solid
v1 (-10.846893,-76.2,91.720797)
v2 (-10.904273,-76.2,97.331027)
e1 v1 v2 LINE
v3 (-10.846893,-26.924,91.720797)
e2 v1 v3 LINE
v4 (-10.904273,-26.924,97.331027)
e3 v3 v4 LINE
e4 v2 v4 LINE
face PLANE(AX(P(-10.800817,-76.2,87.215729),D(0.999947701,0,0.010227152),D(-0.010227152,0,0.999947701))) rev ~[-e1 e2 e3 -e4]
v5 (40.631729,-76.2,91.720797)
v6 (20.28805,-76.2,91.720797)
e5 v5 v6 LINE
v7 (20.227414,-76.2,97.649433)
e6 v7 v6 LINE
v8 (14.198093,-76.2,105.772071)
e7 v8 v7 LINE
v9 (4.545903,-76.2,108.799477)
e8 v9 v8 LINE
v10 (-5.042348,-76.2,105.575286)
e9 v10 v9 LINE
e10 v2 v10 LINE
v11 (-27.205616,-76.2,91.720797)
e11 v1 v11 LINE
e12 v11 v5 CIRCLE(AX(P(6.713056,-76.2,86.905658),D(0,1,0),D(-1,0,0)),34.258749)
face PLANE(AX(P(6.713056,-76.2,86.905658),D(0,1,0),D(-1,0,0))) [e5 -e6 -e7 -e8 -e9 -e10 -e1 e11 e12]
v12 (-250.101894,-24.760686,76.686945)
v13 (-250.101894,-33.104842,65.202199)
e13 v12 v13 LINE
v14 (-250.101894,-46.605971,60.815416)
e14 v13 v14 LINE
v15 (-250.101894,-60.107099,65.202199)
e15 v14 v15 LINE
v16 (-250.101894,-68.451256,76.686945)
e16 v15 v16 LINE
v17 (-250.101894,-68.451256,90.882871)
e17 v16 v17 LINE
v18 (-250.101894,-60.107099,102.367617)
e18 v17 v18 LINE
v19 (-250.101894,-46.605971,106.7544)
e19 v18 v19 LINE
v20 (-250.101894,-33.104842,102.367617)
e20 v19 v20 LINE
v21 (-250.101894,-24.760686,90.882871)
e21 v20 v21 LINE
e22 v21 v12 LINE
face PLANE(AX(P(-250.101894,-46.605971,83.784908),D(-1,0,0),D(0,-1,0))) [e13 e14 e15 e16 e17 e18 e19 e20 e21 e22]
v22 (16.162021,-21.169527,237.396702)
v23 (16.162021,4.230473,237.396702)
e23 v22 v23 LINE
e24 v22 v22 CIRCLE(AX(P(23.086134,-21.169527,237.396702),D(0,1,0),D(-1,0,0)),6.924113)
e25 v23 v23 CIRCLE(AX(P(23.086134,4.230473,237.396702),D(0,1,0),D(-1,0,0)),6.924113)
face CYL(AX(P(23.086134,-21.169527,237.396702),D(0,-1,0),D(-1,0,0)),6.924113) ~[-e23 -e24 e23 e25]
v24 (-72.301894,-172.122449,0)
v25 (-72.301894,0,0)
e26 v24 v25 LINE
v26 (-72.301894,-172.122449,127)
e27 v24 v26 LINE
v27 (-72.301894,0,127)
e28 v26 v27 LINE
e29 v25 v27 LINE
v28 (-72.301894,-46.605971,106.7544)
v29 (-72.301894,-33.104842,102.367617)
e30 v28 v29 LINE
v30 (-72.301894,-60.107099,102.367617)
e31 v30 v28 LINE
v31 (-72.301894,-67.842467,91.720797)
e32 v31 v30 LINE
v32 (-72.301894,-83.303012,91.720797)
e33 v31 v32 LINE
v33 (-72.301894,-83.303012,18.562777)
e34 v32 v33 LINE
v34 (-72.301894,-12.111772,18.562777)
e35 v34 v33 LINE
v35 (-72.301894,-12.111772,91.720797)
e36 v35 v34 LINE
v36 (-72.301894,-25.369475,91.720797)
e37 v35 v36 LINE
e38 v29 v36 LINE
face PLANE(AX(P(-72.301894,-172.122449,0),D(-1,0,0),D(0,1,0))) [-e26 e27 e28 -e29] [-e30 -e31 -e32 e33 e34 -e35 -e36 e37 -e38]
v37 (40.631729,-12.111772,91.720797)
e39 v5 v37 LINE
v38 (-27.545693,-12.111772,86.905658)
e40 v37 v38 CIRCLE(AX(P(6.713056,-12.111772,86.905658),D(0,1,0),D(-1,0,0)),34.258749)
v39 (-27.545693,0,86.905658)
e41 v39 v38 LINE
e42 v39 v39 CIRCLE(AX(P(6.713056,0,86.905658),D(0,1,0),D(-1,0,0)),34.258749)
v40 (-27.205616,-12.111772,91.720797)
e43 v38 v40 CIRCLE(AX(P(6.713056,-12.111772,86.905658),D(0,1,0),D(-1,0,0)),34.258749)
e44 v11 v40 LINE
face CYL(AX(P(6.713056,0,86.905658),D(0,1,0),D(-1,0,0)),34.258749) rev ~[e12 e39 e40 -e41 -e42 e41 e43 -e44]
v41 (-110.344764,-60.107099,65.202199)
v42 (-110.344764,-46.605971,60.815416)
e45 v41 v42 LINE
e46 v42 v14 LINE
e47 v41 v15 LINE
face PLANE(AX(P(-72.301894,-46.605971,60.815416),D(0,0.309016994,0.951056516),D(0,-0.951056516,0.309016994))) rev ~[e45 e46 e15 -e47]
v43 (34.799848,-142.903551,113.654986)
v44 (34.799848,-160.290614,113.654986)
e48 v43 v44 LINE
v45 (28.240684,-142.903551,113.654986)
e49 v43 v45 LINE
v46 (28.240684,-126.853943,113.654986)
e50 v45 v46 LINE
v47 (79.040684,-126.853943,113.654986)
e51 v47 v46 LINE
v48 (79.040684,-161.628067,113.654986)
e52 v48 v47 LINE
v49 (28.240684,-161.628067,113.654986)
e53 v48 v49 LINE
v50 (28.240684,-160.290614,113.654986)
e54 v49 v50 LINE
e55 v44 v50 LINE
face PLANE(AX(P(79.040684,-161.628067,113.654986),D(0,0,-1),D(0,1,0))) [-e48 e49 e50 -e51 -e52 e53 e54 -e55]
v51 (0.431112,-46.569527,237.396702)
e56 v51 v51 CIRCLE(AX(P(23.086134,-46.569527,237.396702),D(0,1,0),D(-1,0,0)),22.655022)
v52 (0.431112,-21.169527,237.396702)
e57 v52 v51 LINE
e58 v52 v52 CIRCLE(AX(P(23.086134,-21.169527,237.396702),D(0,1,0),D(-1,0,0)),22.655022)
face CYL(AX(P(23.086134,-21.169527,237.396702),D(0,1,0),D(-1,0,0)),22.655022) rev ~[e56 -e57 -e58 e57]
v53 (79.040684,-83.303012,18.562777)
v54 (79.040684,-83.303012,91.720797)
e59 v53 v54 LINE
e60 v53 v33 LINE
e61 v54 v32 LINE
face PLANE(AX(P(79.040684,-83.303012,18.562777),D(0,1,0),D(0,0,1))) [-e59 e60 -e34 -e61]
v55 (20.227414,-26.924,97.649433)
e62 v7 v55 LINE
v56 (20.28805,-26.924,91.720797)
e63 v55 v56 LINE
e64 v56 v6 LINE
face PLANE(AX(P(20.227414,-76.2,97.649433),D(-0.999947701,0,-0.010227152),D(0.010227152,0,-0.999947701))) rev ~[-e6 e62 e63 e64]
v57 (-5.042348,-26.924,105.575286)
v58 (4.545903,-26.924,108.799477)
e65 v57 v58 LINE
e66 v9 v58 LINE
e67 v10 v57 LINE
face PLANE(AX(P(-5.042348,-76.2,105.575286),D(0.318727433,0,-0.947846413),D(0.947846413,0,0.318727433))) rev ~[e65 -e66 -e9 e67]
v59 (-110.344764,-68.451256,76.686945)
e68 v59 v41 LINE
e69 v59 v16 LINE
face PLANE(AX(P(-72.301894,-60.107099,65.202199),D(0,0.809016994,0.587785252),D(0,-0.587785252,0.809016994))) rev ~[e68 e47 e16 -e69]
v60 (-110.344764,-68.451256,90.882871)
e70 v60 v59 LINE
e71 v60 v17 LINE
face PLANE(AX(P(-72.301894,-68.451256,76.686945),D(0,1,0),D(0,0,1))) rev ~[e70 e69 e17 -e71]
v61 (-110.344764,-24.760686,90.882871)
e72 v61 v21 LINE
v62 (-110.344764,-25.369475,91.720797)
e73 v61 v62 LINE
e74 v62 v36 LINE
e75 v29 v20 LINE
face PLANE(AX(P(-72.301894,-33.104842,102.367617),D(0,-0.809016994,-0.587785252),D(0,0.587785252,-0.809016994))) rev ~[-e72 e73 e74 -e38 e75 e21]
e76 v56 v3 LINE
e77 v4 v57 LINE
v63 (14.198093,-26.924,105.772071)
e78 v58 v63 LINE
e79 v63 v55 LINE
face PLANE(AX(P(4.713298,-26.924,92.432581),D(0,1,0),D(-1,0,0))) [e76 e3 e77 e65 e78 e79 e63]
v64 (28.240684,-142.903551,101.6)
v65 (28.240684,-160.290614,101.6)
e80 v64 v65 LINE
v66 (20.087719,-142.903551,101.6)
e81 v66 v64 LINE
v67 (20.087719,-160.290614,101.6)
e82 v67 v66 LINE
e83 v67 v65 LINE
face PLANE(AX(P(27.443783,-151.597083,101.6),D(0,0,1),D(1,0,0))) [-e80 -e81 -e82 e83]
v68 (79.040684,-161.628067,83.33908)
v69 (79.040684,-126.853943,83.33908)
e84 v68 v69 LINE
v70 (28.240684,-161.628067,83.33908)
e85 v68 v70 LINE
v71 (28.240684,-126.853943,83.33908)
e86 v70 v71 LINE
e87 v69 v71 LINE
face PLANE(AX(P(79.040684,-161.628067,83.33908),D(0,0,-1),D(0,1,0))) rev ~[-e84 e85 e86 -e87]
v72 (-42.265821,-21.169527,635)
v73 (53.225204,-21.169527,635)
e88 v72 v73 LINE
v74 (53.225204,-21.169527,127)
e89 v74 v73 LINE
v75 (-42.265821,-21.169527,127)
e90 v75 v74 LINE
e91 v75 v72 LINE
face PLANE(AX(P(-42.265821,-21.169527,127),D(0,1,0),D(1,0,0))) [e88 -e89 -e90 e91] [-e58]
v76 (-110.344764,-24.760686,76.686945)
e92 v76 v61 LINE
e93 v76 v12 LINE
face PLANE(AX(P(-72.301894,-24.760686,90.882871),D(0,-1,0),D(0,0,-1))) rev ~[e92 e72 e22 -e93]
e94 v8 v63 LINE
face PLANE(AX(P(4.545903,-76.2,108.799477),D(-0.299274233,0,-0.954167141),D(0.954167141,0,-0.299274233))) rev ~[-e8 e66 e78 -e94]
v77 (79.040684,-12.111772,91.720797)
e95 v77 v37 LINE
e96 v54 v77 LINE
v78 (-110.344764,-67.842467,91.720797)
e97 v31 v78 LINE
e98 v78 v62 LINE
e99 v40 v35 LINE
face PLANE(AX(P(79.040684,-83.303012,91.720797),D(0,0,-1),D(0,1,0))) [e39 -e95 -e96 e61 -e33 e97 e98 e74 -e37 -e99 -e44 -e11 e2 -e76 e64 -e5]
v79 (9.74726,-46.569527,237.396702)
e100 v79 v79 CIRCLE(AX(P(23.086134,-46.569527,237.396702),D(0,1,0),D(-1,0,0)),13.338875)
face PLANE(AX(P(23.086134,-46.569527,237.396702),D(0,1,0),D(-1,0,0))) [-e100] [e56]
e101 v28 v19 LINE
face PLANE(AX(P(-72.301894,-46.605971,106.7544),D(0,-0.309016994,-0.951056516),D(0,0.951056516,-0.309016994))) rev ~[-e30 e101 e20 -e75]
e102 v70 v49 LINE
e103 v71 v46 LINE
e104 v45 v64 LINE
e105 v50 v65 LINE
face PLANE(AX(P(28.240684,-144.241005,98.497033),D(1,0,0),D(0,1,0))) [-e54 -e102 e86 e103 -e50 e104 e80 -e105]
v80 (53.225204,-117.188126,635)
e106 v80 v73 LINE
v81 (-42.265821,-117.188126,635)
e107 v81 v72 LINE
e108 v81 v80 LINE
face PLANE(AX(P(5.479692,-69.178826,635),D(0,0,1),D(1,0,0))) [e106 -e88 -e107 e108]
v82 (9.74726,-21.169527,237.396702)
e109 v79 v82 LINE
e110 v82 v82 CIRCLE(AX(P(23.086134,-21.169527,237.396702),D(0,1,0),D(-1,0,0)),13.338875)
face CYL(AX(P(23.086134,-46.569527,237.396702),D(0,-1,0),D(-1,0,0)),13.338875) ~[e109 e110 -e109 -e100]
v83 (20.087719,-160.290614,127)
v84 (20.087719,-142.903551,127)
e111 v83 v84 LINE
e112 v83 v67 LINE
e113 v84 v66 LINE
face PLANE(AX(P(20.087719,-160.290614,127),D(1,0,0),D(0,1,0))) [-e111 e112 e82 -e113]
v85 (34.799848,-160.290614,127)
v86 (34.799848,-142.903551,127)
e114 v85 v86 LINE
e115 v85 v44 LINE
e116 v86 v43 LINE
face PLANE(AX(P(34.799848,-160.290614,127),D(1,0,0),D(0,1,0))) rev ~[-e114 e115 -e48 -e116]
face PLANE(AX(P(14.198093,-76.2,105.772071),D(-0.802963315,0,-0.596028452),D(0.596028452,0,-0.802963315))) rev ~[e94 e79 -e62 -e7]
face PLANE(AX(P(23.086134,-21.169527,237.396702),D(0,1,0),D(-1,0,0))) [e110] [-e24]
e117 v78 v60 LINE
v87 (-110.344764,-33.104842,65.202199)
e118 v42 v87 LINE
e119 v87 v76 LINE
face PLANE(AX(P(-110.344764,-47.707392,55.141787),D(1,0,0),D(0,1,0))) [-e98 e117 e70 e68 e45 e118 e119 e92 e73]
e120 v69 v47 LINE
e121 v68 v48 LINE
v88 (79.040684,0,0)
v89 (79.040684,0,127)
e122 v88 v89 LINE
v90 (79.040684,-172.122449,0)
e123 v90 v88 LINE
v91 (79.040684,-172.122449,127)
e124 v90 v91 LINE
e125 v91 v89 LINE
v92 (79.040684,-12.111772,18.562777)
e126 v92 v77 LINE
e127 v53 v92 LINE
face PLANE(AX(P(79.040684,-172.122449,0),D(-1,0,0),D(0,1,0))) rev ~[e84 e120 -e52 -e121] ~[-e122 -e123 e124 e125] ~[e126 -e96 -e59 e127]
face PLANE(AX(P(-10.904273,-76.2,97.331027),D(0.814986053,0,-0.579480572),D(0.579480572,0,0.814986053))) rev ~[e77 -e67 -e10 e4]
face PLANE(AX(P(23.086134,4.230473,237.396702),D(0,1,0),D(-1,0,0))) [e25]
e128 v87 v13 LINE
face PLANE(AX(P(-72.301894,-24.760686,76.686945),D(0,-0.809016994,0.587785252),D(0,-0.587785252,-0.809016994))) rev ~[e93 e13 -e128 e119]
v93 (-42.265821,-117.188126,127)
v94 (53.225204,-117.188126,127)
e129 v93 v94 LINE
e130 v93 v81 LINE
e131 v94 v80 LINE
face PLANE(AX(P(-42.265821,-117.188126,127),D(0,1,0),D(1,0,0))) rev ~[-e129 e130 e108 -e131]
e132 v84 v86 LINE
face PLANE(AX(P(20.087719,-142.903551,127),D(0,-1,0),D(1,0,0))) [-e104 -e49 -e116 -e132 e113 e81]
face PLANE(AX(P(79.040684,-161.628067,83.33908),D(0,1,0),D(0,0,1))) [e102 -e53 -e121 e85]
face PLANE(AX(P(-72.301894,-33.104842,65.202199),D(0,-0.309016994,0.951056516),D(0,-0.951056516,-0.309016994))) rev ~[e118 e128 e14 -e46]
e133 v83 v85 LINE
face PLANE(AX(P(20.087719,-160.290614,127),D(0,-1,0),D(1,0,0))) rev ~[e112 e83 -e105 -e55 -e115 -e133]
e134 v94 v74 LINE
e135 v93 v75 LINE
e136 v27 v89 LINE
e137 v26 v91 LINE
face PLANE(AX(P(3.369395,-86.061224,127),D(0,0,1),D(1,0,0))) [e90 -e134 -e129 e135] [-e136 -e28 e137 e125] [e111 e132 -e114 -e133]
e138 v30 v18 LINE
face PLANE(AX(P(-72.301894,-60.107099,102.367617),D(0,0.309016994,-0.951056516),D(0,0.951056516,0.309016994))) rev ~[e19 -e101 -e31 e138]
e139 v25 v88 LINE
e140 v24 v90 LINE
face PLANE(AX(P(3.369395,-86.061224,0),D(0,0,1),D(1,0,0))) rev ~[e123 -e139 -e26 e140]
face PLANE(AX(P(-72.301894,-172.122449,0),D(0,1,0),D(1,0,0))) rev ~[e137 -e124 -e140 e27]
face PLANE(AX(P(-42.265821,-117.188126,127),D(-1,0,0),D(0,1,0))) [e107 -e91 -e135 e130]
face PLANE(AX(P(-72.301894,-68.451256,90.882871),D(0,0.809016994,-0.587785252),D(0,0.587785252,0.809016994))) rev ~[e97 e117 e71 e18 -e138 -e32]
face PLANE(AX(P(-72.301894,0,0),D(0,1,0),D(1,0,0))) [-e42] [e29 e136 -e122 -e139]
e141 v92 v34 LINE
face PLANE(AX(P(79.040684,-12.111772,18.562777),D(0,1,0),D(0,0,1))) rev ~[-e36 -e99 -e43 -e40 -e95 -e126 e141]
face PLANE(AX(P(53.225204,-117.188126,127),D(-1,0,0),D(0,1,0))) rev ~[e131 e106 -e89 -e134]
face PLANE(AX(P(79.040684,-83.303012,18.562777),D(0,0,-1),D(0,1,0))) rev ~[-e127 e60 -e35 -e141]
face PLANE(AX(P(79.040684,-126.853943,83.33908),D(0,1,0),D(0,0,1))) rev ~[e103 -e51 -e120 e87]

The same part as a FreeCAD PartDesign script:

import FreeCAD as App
import Part
import Sketcher
from FreeCAD import Vector
Q = App.Units.Quantity


def add_polygon(sketch, points):
    """Adds a closed chain of lines whose ends are joined by coincident constraints."""
    first, n = sketch.GeometryCount, len(points)
    for a, b in zip(points, points[1:] + points[:1]):
        sketch.addGeometry(Part.LineSegment(App.Vector(*a, 0), App.Vector(*b, 0)), False)
    for i in range(n):
        sketch.addConstraint(Sketcher.Constraint("Coincident", first + i, 2, first + (i + 1) % n, 1))

doc = App.newDocument("Part")
body = doc.addObject("PartDesign::Body", "Body")

sketch1 = body.newObject("Sketcher::SketchObject", "Sketch")
sketch1.AttachmentSupport = (doc.getObject("XY_Plane"), [""])
sketch1.MapMode = "FlatFace"
add_polygon(sketch1, [(-72, 0), (-72, -172), (79, -172), (79, 0)])
sketch1.addConstraint([
    Sketcher.Constraint("Vertical", 0),
    Sketcher.Constraint("Horizontal", 1),
    Sketcher.Constraint("Vertical", 2),
    Sketcher.Constraint("Horizontal", 3),
    Sketcher.Constraint("PointOnObject", 2, 2, -1),
    Sketcher.Constraint("DistanceX", 1, 1, 1, 2, Q("151.342578 mm")),
    Sketcher.Constraint("DistanceY", 0, 2, 0, 1, Q("172.122449 mm")),
    Sketcher.Constraint("DistanceX", 0, 2, -1, 1, Q("72.301894 mm")),
])
pad1 = body.newObject("PartDesign::Pad", "Pad")
pad1.Profile = sketch1
pad1.Length = Q("5 in")

sketch2 = body.newObject("Sketcher::SketchObject", "Sketch001")
sketch2.AttachmentSupport = (doc.getObject("YZ_Plane"), [""])
sketch2.MapMode = "FlatFace"
sketch2.AttachmentOffset = App.Placement(Vector(0, 0, 79.040684), App.Rotation())
add_polygon(sketch2, [(-162, 114), (-162, 83), (-127, 83), (-127, 114)])
sketch2.addConstraint([
    Sketcher.Constraint("Vertical", 0),
    Sketcher.Constraint("Horizontal", 1),
    Sketcher.Constraint("Vertical", 2),
    Sketcher.Constraint("Horizontal", 3),
    Sketcher.Constraint("DistanceX", 1, 1, 1, 2, Q("34.774125 mm")),
    Sketcher.Constraint("DistanceY", 0, 2, 0, 1, Q("30.315906 mm")),
    Sketcher.Constraint("DistanceY", -1, 1, 0, 2, Q("83.33908 mm")),
    Sketcher.Constraint("DistanceX", 0, 2, -1, 1, Q("161.628067 mm")),
])
pocket1 = body.newObject("PartDesign::Pocket", "Pocket")
pocket1.Profile = sketch2
pocket1.Length = Q("2 in")

sketch3 = body.newObject("Sketcher::SketchObject", "Sketch002")
sketch3.AttachmentSupport = (doc.getObject("XY_Plane"), [""])
sketch3.MapMode = "FlatFace"
sketch3.AttachmentOffset = App.Placement(Vector(0, 0, 5 * 25.4), App.Rotation())
add_polygon(sketch3, [(20, -143), (20, -160), (35, -160), (35, -143)])
sketch3.addConstraint([
    Sketcher.Constraint("Vertical", 0),
    Sketcher.Constraint("Horizontal", 1),
    Sketcher.Constraint("Vertical", 2),
    Sketcher.Constraint("Horizontal", 3),
    Sketcher.Constraint("DistanceX", 1, 1, 1, 2, Q("14.712129 mm")),
    Sketcher.Constraint("DistanceY", 0, 2, 0, 1, Q("17.387062 mm")),
    Sketcher.Constraint("DistanceX", -1, 1, 0, 2, Q("20.087719 mm")),
    Sketcher.Constraint("DistanceY", 2, 2, -1, 1, Q("142.903551 mm")),
])
pocket2 = body.newObject("PartDesign::Pocket", "Pocket001")
pocket2.Profile = sketch3
pocket2.Length = Q("1 in")

sketch4 = body.newObject("Sketcher::SketchObject", "Sketch003")
sketch4.AttachmentSupport = (doc.getObject("XZ_Plane"), [""])
sketch4.MapMode = "FlatFace"
sketch4.addGeometry(Part.Circle(Vector(7, 87, 0), Vector(0, 0, 1), 34), False)
sketch4.addConstraint([
    Sketcher.Constraint("Diameter", 0, Q("68.517499 mm")),
    Sketcher.Constraint("DistanceY", -1, 1, 0, 3, Q("86.905658 mm")),
    Sketcher.Constraint("DistanceX", -1, 1, 0, 3, Q("6.713056 mm")),
])
pocket3 = body.newObject("PartDesign::Pocket", "Pocket002")
pocket3.Profile = sketch4
pocket3.Length = Q("3 in")
pocket3.Reversed = True

sketch5 = body.newObject("Sketcher::SketchObject", "Sketch004")
sketch5.AttachmentSupport = (doc.getObject("YZ_Plane"), [""])
sketch5.MapMode = "FlatFace"
sketch5.AttachmentOffset = App.Placement(Vector(0, 0, -72.301894), App.Rotation())
add_polygon(sketch5, [(-68, 77), (-68, 91), (-60, 102), (-47, 107), (-33, 102), (-25, 91), (-25, 77), (-33, 65), (-47, 61), (-60, 65)])
sketch5.addConstraint([
    Sketcher.Constraint("Vertical", 0),
    Sketcher.Constraint("Vertical", 5),
    Sketcher.Constraint("Parallel", 1, 6),
    Sketcher.Constraint("Parallel", 2, 7),
    Sketcher.Constraint("Parallel", 3, 8),
    Sketcher.Constraint("Parallel", 4, 9),
    Sketcher.Constraint("Horizontal", 1, 2, 3, 2),
    Sketcher.Constraint("Horizontal", 0, 2, 4, 2),
    Sketcher.Constraint("Horizontal", 6, 2, 8, 2),
    Sketcher.Constraint("Horizontal", 5, 2, 9, 2),
    Sketcher.Constraint("Vertical", 3, 2, 6, 2),
    Sketcher.Constraint("Vertical", 2, 2, 7, 2),
    Sketcher.Constraint("Vertical", 1, 2, 8, 2),
    Sketcher.Constraint("Equal", 1, 2),
    Sketcher.Constraint("Angle", 1, Q("54 deg")),
    Sketcher.Constraint("Angle", 2, Q("18 deg")),
    Sketcher.Constraint("DistanceX", 1, 2, -1, 1, Q("60.107099 mm")),
    Sketcher.Constraint("DistanceY", -1, 1, 2, 2, Q("106.7544 mm")),
    Sketcher.Constraint("DistanceY", -1, 1, 6, 2, Q("65.202199 mm")),
    Sketcher.Constraint("DistanceY", 0, 1, 0, 2, Q("14.195927 mm")),
])
pad2 = body.newObject("PartDesign::Pad", "Pad001")
pad2.Profile = sketch5
pad2.Length = Q("7 in")
pad2.Reversed = True

sketch6 = body.newObject("Sketcher::SketchObject", "Sketch005")
sketch6.AttachmentSupport = (doc.getObject("XZ_Plane"), [""])
sketch6.MapMode = "FlatFace"
sketch6.AttachmentOffset = App.Placement(Vector(0, 0, 3 * 25.4), App.Rotation())
add_polygon(sketch6, [(-5, 79), (-11, 87), (-11, 97), (-5, 106), (5, 109), (14, 106), (20, 98), (20, 88), (14, 79), (5, 76)])
sketch6.addConstraint([
    Sketcher.Constraint("Parallel", 0, 5),
    Sketcher.Constraint("Parallel", 1, 6),
    Sketcher.Constraint("Parallel", 2, 7),
    Sketcher.Constraint("Parallel", 3, 8),
    Sketcher.Constraint("Parallel", 4, 9),
    Sketcher.Constraint("Equal", 0, 1),
    Sketcher.Constraint("Equal", 1, 2),
    Sketcher.Constraint("Equal", 2, 3),
    Sketcher.Constraint("Equal", 3, 4),
    Sketcher.Constraint("Equal", 4, 5),
    Sketcher.Constraint("Equal", 5, 6),
    Sketcher.Constraint("Equal", 6, 7),
    Sketcher.Constraint("DistanceY", 0, 2, 1, 2, Q("10.115298 mm")),
    Sketcher.Constraint("DistanceY", 7, 2, 3, 2, Q("29.509601 mm")),
    Sketcher.Constraint("DistanceY", -1, 1, 0, 2, Q("87.215729 mm")),
    Sketcher.Constraint("DistanceY", -1, 1, 4, 2, Q("105.772071 mm")),
    Sketcher.Constraint("DistanceX", -1, 1, 6, 2, Q("20.33087 mm")),
    Sketcher.Constraint("DistanceY", -1, 1, 9, 2, Q("79.093091 mm")),
    Sketcher.Constraint("DistanceY", 1, 2, 2, 2, Q("8.244258 mm")),
    Sketcher.Constraint("DistanceX", 0, 2, 2, 2, Q("5.758469 mm")),
])
pad3 = body.newObject("PartDesign::Pad", "Pad002")
pad3.Profile = sketch6
pad3.Length = Q("1.94 in")
pad3.Reversed = True

sketch7 = body.newObject("Sketcher::SketchObject", "Sketch006")
sketch7.AttachmentSupport = (doc.getObject("YZ_Plane"), [""])
sketch7.MapMode = "FlatFace"
sketch7.AttachmentOffset = App.Placement(Vector(0, 0, 79.040684), App.Rotation())
add_polygon(sketch7, [(-83, 92), (-83, 19), (-12, 19), (-12, 92)])
sketch7.addConstraint([
    Sketcher.Constraint("Vertical", 0),
    Sketcher.Constraint("Horizontal", 1),
    Sketcher.Constraint("Vertical", 2),
    Sketcher.Constraint("Horizontal", 3),
    Sketcher.Constraint("DistanceX", 1, 1, 1, 2, Q("71.19124 mm")),
    Sketcher.Constraint("DistanceY", 0, 2, 0, 1, Q("73.15802 mm")),
    Sketcher.Constraint("DistanceX", 0, 2, -1, 1, Q("83.303012 mm")),
    Sketcher.Constraint("DistanceY", -1, 1, 0, 2, Q("18.562777 mm")),
])
pocket4 = body.newObject("PartDesign::Pocket", "Pocket003")
pocket4.Profile = sketch7
pocket4.Length = 189.385448

sketch8 = body.newObject("Sketcher::SketchObject", "Sketch007")
sketch8.AttachmentSupport = (doc.getObject("XY_Plane"), [""])
sketch8.MapMode = "FlatFace"
sketch8.AttachmentOffset = App.Placement(Vector(0, 0, 5 * 25.4), App.Rotation())
add_polygon(sketch8, [(-42, -21), (-42, -117), (53, -117), (53, -21)])
sketch8.addConstraint([
    Sketcher.Constraint("Vertical", 0),
    Sketcher.Constraint("Horizontal", 1),
    Sketcher.Constraint("Vertical", 2),
    Sketcher.Constraint("Horizontal", 3),
    Sketcher.Constraint("DistanceY", 0, 2, 0, 1, Q("96.018599 mm")),
    Sketcher.Constraint("DistanceX", 1, 1, 1, 2, Q("95.491026 mm")),
    Sketcher.Constraint("DistanceX", 0, 2, -1, 1, Q("42.265821 mm")),
    Sketcher.Constraint("DistanceY", 0, 2, -1, 1, Q("117.188126 mm")),
])
pad4 = body.newObject("PartDesign::Pad", "Pad003")
pad4.Profile = sketch8
pad4.Length = Q("20 in")

sketch9 = body.newObject("Sketcher::SketchObject", "Sketch008")
sketch9.AttachmentSupport = (doc.getObject("XZ_Plane"), [""])
sketch9.MapMode = "FlatFace"
sketch9.AttachmentOffset = App.Placement(Vector(0, 0, 21.169527), App.Rotation())
sketch9.addGeometry(Part.Circle(Vector(23, 237, 0), Vector(0, 0, 1), 23), False)
sketch9.addConstraint([
    Sketcher.Constraint("Diameter", 0, Q("45.310044 mm")),
    Sketcher.Constraint("DistanceX", -1, 1, 0, 3, Q("23.086134 mm")),
    Sketcher.Constraint("DistanceY", -1, 1, 0, 3, Q("237.396702 mm")),
])
pocket5 = body.newObject("PartDesign::Pocket", "Pocket004")
pocket5.Profile = sketch9
pocket5.Length = Q("1 in")
pocket5.Reversed = True

sketch10 = body.newObject("Sketcher::SketchObject", "Sketch009")
sketch10.AttachmentSupport = (doc.getObject("XZ_Plane"), [""])
sketch10.MapMode = "FlatFace"
sketch10.AttachmentOffset = App.Placement(Vector(0, 0, 46.569527), App.Rotation())
sketch10.addGeometry(Part.Circle(Vector(23, 237, 0), Vector(0, 0, 1), 13), False)
sketch10.addConstraint([
    Sketcher.Constraint("Diameter", 0, Q("25.019506 mm")),
    Sketcher.Constraint("DistanceX", -1, 1, 0, 3, Q("23.086134 mm")),
    Sketcher.Constraint("DistanceY", -1, 1, 0, 3, Q("237.396702 mm")),
])
pad5 = body.newObject("PartDesign::Pad", "Pad004")
pad5.Profile = sketch10
pad5.Length = Q("1 in")

sketch11 = body.newObject("Sketcher::SketchObject", "Sketch010")
sketch11.AttachmentSupport = (doc.getObject("XZ_Plane"), [""])
sketch11.MapMode = "FlatFace"
sketch11.AttachmentOffset = App.Placement(Vector(0, 0, 46.569527), App.Rotation())
sketch11.addGeometry(Part.Circle(Vector(23, 237, 0), Vector(0, 0, 1), 13), False)
sketch11.addConstraint([
    Sketcher.Constraint("Diameter", 0, Q("26.67775 mm")),
    Sketcher.Constraint("DistanceX", -1, 1, 0, 3, Q("23.086134 mm")),
    Sketcher.Constraint("DistanceY", -1, 1, 0, 3, Q("237.396702 mm")),
])
pad6 = body.newObject("PartDesign::Pad", "Pad005")
pad6.Profile = sketch11
pad6.Length = Q("1 in")
pad6.Reversed = True

sketch12 = body.newObject("Sketcher::SketchObject", "Sketch011")
sketch12.AttachmentSupport = (doc.getObject("XZ_Plane"), [""])
sketch12.MapMode = "FlatFace"
sketch12.AttachmentOffset = App.Placement(Vector(0, 0, 21.169527), App.Rotation())
sketch12.addGeometry(Part.Circle(Vector(23, 237, 0), Vector(0, 0, 1), 7), False)
sketch12.addConstraint([
    Sketcher.Constraint("Diameter", 0, Q("13.848227 mm")),
    Sketcher.Constraint("DistanceX", -1, 1, 0, 3, Q("23.086134 mm")),
    Sketcher.Constraint("DistanceY", -1, 1, 0, 3, Q("237.396702 mm")),
])
pad7 = body.newObject("PartDesign::Pad", "Pad006")
pad7.Profile = sketch12
pad7.Length = Q("1 in")
pad7.Reversed = True

doc.recompute()
